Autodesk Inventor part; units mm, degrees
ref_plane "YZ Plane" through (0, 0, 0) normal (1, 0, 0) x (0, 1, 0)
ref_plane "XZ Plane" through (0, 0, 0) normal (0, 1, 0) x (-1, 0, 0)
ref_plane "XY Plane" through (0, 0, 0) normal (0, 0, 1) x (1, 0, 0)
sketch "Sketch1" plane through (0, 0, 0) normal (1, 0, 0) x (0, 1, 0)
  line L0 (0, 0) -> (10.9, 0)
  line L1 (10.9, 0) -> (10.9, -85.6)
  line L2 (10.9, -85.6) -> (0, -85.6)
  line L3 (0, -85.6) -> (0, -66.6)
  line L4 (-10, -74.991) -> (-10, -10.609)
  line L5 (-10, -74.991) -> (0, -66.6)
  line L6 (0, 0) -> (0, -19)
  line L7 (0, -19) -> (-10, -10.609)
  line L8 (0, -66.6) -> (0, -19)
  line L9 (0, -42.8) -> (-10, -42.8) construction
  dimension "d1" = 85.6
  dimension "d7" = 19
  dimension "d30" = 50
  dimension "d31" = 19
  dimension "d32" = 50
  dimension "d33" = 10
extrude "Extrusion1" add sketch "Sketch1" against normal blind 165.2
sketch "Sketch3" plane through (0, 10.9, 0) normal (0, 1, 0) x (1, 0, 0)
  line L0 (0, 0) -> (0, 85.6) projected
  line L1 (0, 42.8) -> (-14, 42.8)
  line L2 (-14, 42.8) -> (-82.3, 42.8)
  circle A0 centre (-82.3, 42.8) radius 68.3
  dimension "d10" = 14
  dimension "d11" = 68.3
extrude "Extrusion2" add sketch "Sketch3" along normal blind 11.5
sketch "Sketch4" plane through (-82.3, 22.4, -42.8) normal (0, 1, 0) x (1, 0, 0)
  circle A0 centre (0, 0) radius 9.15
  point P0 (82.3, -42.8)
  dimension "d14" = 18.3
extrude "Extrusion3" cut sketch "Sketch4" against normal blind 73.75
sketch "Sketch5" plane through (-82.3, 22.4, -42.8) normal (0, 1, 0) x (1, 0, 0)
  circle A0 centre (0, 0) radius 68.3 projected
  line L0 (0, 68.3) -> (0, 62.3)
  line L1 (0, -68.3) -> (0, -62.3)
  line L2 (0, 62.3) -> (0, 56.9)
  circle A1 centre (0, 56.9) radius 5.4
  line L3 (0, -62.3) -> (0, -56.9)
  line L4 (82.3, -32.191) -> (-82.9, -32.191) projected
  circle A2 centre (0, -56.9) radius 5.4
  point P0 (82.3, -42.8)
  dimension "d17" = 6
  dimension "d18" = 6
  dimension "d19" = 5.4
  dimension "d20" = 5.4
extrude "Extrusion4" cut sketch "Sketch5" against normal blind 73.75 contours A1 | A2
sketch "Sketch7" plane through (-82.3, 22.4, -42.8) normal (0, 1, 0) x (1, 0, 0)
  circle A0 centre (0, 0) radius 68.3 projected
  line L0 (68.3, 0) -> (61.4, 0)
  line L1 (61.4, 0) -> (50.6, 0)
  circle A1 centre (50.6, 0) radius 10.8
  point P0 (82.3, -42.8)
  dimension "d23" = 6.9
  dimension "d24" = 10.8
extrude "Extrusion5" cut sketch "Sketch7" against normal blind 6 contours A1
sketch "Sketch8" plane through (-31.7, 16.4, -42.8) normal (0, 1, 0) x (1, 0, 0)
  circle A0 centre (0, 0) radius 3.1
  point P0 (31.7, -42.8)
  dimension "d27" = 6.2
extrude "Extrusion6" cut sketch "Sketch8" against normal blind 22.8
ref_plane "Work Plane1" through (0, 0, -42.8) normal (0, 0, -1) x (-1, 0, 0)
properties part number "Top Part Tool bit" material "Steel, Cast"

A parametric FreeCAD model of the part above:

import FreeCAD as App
import Part
import Sketcher
from FreeCAD import Vector
Q = App.Units.Quantity

doc = App.newDocument("Part")
body = doc.addObject("PartDesign::Body", "Body")

sketch1 = doc.addObject("Sketcher::SketchObject", "Sketch")
body.addObject(sketch1)
sketch1.AttachmentSupport = (doc.YZ_Plane, [""])
sketch1.MapMode = "FlatFace"
sketch1.addGeometry([
    Part.LineSegment(Vector(10.9, 0, 0), Vector(0, 0, 0)),
    Part.LineSegment(Vector(0, 0, 0), Vector(0, -19, 0)),
    Part.LineSegment(Vector(0, -19, 0), Vector(-10, -10.609, 0)),
    Part.LineSegment(Vector(-10, -10.609, 0), Vector(-10, -74.991, 0)),
    Part.LineSegment(Vector(-10, -74.991, 0), Vector(0, -66.6, 0)),
    Part.LineSegment(Vector(0, -66.6, 0), Vector(0, -85.6, 0)),
    Part.LineSegment(Vector(0, -85.6, 0), Vector(10.9, -85.6, 0)),
    Part.LineSegment(Vector(10.9, -85.6, 0), Vector(10.9, 0, 0)),
], False)
sketch1.addConstraint([
    Sketcher.Constraint("Coincident", 0, 2, 1, 1),
    Sketcher.Constraint("Coincident", 1, 2, 2, 1),
    Sketcher.Constraint("Coincident", 2, 2, 3, 1),
    Sketcher.Constraint("Coincident", 3, 2, 4, 1),
    Sketcher.Constraint("Coincident", 4, 2, 5, 1),
    Sketcher.Constraint("Coincident", 5, 2, 6, 1),
    Sketcher.Constraint("Coincident", 6, 2, 7, 1),
    Sketcher.Constraint("Coincident", 7, 2, 0, 1),
    Sketcher.Constraint("Horizontal", 0),
    Sketcher.Constraint("Vertical", 1),
    Sketcher.Constraint("Vertical", 3),
    Sketcher.Constraint("Vertical", 5),
    Sketcher.Constraint("Horizontal", 6),
    Sketcher.Constraint("Vertical", 7),
    Sketcher.Constraint("Coincident", 0, 2, -1, 1),
    Sketcher.Constraint("PointOnObject", 4, 2, -2),
    Sketcher.Constraint("Equal", 1, 5),
    Sketcher.Constraint("Equal", 2, 4),
    Sketcher.Constraint("DistanceY", 1, 2, 1, 1, 19.0),
    Sketcher.Constraint("DistanceY", 7, 1, 7, 2, 85.6),
    Sketcher.Constraint("DistanceX", 2, 2, -1, 1, 10.0),
    Sketcher.Constraint("Angle", 2, Q("140 deg")),
    Sketcher.Constraint("DistanceX", 0, 2, 0, 1, 10.9),
])
pad1 = doc.addObject("PartDesign::Pad", "Pad")
body.addObject(pad1)
pad1.Profile = sketch1
pad1.Length = 165.2
pad1.Reversed = True

sketch2 = doc.addObject("Sketcher::SketchObject", "Sketch001")
body.addObject(sketch2)
sketch2.AttachmentSupport = (doc.XZ_Plane, [""])
sketch2.MapMode = "FlatFace"
sketch2.AttachmentOffset = App.Placement(Vector(0, 0, -10.9), App.Rotation())
sketch2.addGeometry(Part.Circle(Vector(-82.3, -42.8, 0), Vector(0, 0, 1), 68.3), False)
sketch2.addConstraint([
    Sketcher.Constraint("Diameter", 0, 136.6),
    Sketcher.Constraint("DistanceX", 0, 3, -1, 1, 82.3),
    Sketcher.Constraint("DistanceY", 0, 3, -1, 1, 42.8),
])
pad2 = doc.addObject("PartDesign::Pad", "Pad001")
body.addObject(pad2)
pad2.Profile = sketch2
pad2.Length = 11.5
pad2.Reversed = True

sketch3 = doc.addObject("Sketcher::SketchObject", "Sketch002")
body.addObject(sketch3)
sketch3.AttachmentSupport = (doc.XZ_Plane, [""])
sketch3.MapMode = "FlatFace"
sketch3.AttachmentOffset = App.Placement(Vector(0, 0, -22.4), App.Rotation())
sketch3.addGeometry(Part.Circle(Vector(-82.3, -42.8, 0), Vector(0, 0, 1), 9.15), False)
sketch3.addConstraint([
    Sketcher.Constraint("Diameter", 0, 18.3),
    Sketcher.Constraint("DistanceX", 0, 3, -1, 1, 82.3),
    Sketcher.Constraint("DistanceY", 0, 3, -1, 1, 42.8),
])
pocket1 = doc.addObject("PartDesign::Pocket", "Pocket")
body.addObject(pocket1)
pocket1.Profile = sketch3
pocket1.Length = 73.75
pocket1.Reversed = True

sketch4 = doc.addObject("Sketcher::SketchObject", "Sketch003")
body.addObject(sketch4)
sketch4.AttachmentSupport = (doc.XZ_Plane, [""])
sketch4.MapMode = "FlatFace"
sketch4.AttachmentOffset = App.Placement(Vector(0, 0, -22.4), App.Rotation())
sketch4.addGeometry([
    Part.Circle(Vector(-82.3, -99.7, 0), Vector(0, 0, 1), 5.4),
    Part.Circle(Vector(-82.3, 14.1, 0), Vector(0, 0, 1), 5.4),
], False)
sketch4.addConstraint([
    Sketcher.Constraint("Equal", 0, 1),
    Sketcher.Constraint("Vertical", 0, 3, 1, 3),
    Sketcher.Constraint("Diameter", 0, 10.8),
    Sketcher.Constraint("DistanceX", 0, 3, -1, 1, 82.3),
    Sketcher.Constraint("DistanceY", 0, 3, -1, 1, 99.7),
    Sketcher.Constraint("DistanceY", -1, 1, 1, 3, 14.1),
])
pocket2 = doc.addObject("PartDesign::Pocket", "Pocket001")
body.addObject(pocket2)
pocket2.Profile = sketch4
pocket2.Length = 73.75
pocket2.Reversed = True

sketch5 = doc.addObject("Sketcher::SketchObject", "Sketch004")
body.addObject(sketch5)
sketch5.AttachmentSupport = (doc.XZ_Plane, [""])
sketch5.MapMode = "FlatFace"
sketch5.AttachmentOffset = App.Placement(Vector(0, 0, -22.4), App.Rotation())
sketch5.addGeometry(Part.Circle(Vector(-31.7, -42.8, 0), Vector(0, 0, 1), 10.8), False)
sketch5.addConstraint([
    Sketcher.Constraint("Diameter", 0, 21.6),
    Sketcher.Constraint("DistanceX", 0, 3, -1, 1, 31.7),
    Sketcher.Constraint("DistanceY", 0, 3, -1, 1, 42.8),
])
pocket3 = doc.addObject("PartDesign::Pocket", "Pocket002")
body.addObject(pocket3)
pocket3.Profile = sketch5
pocket3.Length = 6
pocket3.Reversed = True

sketch6 = doc.addObject("Sketcher::SketchObject", "Sketch005")
body.addObject(sketch6)
sketch6.AttachmentSupport = (doc.XZ_Plane, [""])
sketch6.MapMode = "FlatFace"
sketch6.AttachmentOffset = App.Placement(Vector(0, 0, -16.4), App.Rotation())
sketch6.addGeometry(Part.Circle(Vector(-31.7, -42.8, 0), Vector(0, 0, 1), 3.1), False)
sketch6.addConstraint([
    Sketcher.Constraint("Diameter", 0, 6.2),
    Sketcher.Constraint("DistanceX", 0, 3, -1, 1, 31.7),
    Sketcher.Constraint("DistanceY", 0, 3, -1, 1, 42.8),
])
pocket4 = doc.addObject("PartDesign::Pocket", "Pocket003")
body.addObject(pocket4)
pocket4.Profile = sketch6
pocket4.Length = 22.8
pocket4.Reversed = True

doc.recompute()
